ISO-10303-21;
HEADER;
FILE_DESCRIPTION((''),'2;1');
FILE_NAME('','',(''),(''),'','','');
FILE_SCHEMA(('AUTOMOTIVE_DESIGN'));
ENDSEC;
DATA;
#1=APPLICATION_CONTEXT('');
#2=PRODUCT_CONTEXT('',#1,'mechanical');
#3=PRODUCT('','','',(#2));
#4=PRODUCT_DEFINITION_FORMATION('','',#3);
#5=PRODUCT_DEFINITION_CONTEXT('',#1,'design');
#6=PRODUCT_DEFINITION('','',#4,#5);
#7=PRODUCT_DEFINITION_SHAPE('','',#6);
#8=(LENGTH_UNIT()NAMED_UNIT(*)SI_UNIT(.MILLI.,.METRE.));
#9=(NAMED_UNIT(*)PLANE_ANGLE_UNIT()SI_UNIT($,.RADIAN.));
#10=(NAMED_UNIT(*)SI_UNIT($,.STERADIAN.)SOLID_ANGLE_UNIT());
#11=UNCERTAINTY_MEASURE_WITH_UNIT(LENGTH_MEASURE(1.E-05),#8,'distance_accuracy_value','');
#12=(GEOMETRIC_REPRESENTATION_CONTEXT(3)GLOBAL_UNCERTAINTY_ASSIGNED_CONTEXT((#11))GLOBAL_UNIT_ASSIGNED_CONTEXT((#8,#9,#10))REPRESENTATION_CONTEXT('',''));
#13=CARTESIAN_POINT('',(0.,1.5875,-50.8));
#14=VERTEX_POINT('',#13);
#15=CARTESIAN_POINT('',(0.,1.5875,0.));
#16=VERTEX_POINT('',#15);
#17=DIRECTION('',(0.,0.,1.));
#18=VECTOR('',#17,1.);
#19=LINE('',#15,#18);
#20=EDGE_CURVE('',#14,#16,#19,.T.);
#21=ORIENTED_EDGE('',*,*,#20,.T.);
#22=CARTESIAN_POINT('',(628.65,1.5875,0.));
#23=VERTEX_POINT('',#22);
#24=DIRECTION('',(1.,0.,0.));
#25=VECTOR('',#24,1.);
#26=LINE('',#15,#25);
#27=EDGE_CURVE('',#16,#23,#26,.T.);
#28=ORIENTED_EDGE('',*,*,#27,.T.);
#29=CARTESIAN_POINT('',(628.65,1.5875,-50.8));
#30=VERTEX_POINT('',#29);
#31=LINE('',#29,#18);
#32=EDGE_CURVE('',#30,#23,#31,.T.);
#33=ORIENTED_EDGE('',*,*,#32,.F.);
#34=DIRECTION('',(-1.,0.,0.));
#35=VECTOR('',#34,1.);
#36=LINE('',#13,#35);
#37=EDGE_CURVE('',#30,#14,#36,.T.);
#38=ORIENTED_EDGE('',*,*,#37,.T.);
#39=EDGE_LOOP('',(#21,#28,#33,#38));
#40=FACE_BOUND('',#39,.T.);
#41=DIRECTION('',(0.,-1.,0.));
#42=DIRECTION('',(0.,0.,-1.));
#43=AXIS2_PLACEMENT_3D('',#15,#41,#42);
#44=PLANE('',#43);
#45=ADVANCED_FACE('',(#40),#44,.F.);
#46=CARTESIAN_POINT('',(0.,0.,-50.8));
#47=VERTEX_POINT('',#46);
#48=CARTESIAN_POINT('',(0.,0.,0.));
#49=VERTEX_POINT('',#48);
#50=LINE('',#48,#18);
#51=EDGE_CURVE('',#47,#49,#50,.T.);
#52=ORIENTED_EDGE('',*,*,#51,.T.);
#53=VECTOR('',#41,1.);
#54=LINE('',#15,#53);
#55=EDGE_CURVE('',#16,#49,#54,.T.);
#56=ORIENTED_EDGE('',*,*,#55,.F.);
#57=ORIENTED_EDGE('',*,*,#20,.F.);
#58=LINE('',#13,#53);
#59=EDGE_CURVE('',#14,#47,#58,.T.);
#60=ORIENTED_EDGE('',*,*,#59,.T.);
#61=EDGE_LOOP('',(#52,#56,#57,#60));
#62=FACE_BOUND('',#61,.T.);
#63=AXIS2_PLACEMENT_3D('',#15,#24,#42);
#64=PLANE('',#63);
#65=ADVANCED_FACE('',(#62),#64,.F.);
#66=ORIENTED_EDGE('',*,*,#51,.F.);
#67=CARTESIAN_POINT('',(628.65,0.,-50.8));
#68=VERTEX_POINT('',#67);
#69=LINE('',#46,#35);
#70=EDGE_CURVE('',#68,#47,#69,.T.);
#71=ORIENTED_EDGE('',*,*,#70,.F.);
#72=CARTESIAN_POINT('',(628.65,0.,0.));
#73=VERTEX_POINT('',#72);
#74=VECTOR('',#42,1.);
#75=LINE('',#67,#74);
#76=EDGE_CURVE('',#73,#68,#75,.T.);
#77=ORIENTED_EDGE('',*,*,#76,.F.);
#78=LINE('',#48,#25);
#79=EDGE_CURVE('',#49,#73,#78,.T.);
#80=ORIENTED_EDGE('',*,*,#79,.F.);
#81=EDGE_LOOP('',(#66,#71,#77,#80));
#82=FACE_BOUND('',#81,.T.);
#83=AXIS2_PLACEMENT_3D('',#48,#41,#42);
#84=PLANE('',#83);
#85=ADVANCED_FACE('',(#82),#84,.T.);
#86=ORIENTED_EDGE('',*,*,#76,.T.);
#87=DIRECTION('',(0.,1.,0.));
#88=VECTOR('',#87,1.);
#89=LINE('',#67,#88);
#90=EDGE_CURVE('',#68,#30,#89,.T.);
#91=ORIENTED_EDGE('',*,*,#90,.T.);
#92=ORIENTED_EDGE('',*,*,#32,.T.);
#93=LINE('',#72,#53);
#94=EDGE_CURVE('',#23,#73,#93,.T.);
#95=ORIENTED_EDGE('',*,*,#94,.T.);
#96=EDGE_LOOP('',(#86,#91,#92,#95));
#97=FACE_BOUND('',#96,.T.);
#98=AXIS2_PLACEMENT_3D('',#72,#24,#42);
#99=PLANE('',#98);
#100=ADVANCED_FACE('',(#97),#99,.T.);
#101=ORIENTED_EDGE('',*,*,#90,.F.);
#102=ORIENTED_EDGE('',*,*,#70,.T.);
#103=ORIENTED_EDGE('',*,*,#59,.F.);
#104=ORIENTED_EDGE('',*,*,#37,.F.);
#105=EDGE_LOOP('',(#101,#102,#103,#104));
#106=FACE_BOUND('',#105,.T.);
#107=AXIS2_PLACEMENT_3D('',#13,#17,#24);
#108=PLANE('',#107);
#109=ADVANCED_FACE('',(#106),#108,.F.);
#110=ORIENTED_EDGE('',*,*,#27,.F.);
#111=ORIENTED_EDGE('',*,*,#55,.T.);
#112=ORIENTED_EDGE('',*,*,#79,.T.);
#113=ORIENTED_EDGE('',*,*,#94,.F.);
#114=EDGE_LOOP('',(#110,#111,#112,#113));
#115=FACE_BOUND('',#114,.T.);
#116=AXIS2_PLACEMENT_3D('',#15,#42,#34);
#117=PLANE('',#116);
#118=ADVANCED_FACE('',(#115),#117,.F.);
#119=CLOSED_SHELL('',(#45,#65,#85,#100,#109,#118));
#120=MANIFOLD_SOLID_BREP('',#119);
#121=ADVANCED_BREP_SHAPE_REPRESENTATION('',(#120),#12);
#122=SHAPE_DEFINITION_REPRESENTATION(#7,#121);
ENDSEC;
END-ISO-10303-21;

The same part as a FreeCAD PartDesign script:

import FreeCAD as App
import Part
import Sketcher

V = App.Vector
Q = App.Units.Quantity

doc = App.newDocument("Part")
params = doc.addObject("Spreadsheet::Sheet", "Params")
for row, (alias, value) in enumerate([
    ("sketch1_width", "22 in"),
    ("sketch1_height", "2 in"),
    ("pad1_length", "0.0625 in"),
    ("sketch2_height", "2 in"),
    ("sketch2_width", "0.0625 in"),
    ("pad2_length", "2.75 in"),
], start=1):
    params.set(f"A{row}", alias)
    params.set(f"B{row}", "=" + value)
    params.setAlias(f"B{row}", alias)

body = doc.addObject("PartDesign::Body", "Body")

sketch1 = body.newObject("Sketcher::SketchObject", "Sketch")
sketch1.AttachmentSupport = (doc.getObject("XZ_Plane"), [""])
sketch1.MapMode = "FlatFace"
sketch1.addGeometry([
    Part.LineSegment(V(0, -51, 0), V(0, 0, 0)),
    Part.LineSegment(V(0, 0, 0), V(559, 0, 0)),
    Part.LineSegment(V(559, 0, 0), V(559, -51, 0)),
    Part.LineSegment(V(559, -51, 0), V(0, -51, 0)),
], False)
sketch1.addConstraint([
    Sketcher.Constraint("Coincident", 0, 2, 1, 1),
    Sketcher.Constraint("Coincident", 1, 2, 2, 1),
    Sketcher.Constraint("Coincident", 2, 2, 3, 1),
    Sketcher.Constraint("Coincident", 3, 2, 0, 1),
    Sketcher.Constraint("Vertical", 0),
    Sketcher.Constraint("Horizontal", 1),
    Sketcher.Constraint("Vertical", 2),
    Sketcher.Constraint("Horizontal", 3),
    Sketcher.Constraint("Coincident", 0, 2, -1, 1),
    Sketcher.Constraint("DistanceX", 1, 1, 1, 2, Q("22 in")),
    Sketcher.Constraint("DistanceY", 0, 1, 0, 2, Q("2 in")),
])
sketch1.setExpression("Constraints[9]", "Params.sketch1_width")
sketch1.setExpression("Constraints[10]", "Params.sketch1_height")
pad1 = body.newObject("PartDesign::Pad", "Pad")
pad1.Profile = sketch1
pad1.setExpression("Length", "Params.pad1_length")
pad1.Reversed = True

sketch2 = body.newObject("Sketcher::SketchObject", "Sketch001")
sketch2.AttachmentSupport = (doc.getObject("YZ_Plane"), [""])
sketch2.MapMode = "FlatFace"
sketch2.AttachmentOffset = App.Placement(V(0, 0, 22 * 25.4), App.Rotation())
sketch2.addGeometry([
    Part.LineSegment(V(1.6, 0, 0), V(0, 0, 0)),
    Part.LineSegment(V(0, 0, 0), V(0, -50.8, 0)),
    Part.LineSegment(V(0, -50.8, 0), V(1.6, -50.8, 0)),
    Part.LineSegment(V(1.6, -50.8, 0), V(1.6, 0, 0)),
], False)
sketch2.addConstraint([
    Sketcher.Constraint("Coincident", 0, 2, 1, 1),
    Sketcher.Constraint("Coincident", 1, 2, 2, 1),
    Sketcher.Constraint("Coincident", 2, 2, 3, 1),
    Sketcher.Constraint("Coincident", 3, 2, 0, 1),
    Sketcher.Constraint("Horizontal", 0),
    Sketcher.Constraint("Vertical", 1),
    Sketcher.Constraint("Horizontal", 2),
    Sketcher.Constraint("Vertical", 3),
    Sketcher.Constraint("Coincident", 0, 2, -1, 1),
    Sketcher.Constraint("DistanceY", 1, 2, 1, 1, Q("2 in")),
    Sketcher.Constraint("DistanceX", 0, 2, 0, 1, Q("0.0625 in")),
])
sketch2.setExpression("Constraints[9]", "Params.sketch2_height")
sketch2.setExpression("Constraints[10]", "Params.sketch2_width")
pad2 = body.newObject("PartDesign::Pad", "Pad001")
pad2.Profile = sketch2
pad2.setExpression("Length", "Params.pad2_length")

doc.recompute()
